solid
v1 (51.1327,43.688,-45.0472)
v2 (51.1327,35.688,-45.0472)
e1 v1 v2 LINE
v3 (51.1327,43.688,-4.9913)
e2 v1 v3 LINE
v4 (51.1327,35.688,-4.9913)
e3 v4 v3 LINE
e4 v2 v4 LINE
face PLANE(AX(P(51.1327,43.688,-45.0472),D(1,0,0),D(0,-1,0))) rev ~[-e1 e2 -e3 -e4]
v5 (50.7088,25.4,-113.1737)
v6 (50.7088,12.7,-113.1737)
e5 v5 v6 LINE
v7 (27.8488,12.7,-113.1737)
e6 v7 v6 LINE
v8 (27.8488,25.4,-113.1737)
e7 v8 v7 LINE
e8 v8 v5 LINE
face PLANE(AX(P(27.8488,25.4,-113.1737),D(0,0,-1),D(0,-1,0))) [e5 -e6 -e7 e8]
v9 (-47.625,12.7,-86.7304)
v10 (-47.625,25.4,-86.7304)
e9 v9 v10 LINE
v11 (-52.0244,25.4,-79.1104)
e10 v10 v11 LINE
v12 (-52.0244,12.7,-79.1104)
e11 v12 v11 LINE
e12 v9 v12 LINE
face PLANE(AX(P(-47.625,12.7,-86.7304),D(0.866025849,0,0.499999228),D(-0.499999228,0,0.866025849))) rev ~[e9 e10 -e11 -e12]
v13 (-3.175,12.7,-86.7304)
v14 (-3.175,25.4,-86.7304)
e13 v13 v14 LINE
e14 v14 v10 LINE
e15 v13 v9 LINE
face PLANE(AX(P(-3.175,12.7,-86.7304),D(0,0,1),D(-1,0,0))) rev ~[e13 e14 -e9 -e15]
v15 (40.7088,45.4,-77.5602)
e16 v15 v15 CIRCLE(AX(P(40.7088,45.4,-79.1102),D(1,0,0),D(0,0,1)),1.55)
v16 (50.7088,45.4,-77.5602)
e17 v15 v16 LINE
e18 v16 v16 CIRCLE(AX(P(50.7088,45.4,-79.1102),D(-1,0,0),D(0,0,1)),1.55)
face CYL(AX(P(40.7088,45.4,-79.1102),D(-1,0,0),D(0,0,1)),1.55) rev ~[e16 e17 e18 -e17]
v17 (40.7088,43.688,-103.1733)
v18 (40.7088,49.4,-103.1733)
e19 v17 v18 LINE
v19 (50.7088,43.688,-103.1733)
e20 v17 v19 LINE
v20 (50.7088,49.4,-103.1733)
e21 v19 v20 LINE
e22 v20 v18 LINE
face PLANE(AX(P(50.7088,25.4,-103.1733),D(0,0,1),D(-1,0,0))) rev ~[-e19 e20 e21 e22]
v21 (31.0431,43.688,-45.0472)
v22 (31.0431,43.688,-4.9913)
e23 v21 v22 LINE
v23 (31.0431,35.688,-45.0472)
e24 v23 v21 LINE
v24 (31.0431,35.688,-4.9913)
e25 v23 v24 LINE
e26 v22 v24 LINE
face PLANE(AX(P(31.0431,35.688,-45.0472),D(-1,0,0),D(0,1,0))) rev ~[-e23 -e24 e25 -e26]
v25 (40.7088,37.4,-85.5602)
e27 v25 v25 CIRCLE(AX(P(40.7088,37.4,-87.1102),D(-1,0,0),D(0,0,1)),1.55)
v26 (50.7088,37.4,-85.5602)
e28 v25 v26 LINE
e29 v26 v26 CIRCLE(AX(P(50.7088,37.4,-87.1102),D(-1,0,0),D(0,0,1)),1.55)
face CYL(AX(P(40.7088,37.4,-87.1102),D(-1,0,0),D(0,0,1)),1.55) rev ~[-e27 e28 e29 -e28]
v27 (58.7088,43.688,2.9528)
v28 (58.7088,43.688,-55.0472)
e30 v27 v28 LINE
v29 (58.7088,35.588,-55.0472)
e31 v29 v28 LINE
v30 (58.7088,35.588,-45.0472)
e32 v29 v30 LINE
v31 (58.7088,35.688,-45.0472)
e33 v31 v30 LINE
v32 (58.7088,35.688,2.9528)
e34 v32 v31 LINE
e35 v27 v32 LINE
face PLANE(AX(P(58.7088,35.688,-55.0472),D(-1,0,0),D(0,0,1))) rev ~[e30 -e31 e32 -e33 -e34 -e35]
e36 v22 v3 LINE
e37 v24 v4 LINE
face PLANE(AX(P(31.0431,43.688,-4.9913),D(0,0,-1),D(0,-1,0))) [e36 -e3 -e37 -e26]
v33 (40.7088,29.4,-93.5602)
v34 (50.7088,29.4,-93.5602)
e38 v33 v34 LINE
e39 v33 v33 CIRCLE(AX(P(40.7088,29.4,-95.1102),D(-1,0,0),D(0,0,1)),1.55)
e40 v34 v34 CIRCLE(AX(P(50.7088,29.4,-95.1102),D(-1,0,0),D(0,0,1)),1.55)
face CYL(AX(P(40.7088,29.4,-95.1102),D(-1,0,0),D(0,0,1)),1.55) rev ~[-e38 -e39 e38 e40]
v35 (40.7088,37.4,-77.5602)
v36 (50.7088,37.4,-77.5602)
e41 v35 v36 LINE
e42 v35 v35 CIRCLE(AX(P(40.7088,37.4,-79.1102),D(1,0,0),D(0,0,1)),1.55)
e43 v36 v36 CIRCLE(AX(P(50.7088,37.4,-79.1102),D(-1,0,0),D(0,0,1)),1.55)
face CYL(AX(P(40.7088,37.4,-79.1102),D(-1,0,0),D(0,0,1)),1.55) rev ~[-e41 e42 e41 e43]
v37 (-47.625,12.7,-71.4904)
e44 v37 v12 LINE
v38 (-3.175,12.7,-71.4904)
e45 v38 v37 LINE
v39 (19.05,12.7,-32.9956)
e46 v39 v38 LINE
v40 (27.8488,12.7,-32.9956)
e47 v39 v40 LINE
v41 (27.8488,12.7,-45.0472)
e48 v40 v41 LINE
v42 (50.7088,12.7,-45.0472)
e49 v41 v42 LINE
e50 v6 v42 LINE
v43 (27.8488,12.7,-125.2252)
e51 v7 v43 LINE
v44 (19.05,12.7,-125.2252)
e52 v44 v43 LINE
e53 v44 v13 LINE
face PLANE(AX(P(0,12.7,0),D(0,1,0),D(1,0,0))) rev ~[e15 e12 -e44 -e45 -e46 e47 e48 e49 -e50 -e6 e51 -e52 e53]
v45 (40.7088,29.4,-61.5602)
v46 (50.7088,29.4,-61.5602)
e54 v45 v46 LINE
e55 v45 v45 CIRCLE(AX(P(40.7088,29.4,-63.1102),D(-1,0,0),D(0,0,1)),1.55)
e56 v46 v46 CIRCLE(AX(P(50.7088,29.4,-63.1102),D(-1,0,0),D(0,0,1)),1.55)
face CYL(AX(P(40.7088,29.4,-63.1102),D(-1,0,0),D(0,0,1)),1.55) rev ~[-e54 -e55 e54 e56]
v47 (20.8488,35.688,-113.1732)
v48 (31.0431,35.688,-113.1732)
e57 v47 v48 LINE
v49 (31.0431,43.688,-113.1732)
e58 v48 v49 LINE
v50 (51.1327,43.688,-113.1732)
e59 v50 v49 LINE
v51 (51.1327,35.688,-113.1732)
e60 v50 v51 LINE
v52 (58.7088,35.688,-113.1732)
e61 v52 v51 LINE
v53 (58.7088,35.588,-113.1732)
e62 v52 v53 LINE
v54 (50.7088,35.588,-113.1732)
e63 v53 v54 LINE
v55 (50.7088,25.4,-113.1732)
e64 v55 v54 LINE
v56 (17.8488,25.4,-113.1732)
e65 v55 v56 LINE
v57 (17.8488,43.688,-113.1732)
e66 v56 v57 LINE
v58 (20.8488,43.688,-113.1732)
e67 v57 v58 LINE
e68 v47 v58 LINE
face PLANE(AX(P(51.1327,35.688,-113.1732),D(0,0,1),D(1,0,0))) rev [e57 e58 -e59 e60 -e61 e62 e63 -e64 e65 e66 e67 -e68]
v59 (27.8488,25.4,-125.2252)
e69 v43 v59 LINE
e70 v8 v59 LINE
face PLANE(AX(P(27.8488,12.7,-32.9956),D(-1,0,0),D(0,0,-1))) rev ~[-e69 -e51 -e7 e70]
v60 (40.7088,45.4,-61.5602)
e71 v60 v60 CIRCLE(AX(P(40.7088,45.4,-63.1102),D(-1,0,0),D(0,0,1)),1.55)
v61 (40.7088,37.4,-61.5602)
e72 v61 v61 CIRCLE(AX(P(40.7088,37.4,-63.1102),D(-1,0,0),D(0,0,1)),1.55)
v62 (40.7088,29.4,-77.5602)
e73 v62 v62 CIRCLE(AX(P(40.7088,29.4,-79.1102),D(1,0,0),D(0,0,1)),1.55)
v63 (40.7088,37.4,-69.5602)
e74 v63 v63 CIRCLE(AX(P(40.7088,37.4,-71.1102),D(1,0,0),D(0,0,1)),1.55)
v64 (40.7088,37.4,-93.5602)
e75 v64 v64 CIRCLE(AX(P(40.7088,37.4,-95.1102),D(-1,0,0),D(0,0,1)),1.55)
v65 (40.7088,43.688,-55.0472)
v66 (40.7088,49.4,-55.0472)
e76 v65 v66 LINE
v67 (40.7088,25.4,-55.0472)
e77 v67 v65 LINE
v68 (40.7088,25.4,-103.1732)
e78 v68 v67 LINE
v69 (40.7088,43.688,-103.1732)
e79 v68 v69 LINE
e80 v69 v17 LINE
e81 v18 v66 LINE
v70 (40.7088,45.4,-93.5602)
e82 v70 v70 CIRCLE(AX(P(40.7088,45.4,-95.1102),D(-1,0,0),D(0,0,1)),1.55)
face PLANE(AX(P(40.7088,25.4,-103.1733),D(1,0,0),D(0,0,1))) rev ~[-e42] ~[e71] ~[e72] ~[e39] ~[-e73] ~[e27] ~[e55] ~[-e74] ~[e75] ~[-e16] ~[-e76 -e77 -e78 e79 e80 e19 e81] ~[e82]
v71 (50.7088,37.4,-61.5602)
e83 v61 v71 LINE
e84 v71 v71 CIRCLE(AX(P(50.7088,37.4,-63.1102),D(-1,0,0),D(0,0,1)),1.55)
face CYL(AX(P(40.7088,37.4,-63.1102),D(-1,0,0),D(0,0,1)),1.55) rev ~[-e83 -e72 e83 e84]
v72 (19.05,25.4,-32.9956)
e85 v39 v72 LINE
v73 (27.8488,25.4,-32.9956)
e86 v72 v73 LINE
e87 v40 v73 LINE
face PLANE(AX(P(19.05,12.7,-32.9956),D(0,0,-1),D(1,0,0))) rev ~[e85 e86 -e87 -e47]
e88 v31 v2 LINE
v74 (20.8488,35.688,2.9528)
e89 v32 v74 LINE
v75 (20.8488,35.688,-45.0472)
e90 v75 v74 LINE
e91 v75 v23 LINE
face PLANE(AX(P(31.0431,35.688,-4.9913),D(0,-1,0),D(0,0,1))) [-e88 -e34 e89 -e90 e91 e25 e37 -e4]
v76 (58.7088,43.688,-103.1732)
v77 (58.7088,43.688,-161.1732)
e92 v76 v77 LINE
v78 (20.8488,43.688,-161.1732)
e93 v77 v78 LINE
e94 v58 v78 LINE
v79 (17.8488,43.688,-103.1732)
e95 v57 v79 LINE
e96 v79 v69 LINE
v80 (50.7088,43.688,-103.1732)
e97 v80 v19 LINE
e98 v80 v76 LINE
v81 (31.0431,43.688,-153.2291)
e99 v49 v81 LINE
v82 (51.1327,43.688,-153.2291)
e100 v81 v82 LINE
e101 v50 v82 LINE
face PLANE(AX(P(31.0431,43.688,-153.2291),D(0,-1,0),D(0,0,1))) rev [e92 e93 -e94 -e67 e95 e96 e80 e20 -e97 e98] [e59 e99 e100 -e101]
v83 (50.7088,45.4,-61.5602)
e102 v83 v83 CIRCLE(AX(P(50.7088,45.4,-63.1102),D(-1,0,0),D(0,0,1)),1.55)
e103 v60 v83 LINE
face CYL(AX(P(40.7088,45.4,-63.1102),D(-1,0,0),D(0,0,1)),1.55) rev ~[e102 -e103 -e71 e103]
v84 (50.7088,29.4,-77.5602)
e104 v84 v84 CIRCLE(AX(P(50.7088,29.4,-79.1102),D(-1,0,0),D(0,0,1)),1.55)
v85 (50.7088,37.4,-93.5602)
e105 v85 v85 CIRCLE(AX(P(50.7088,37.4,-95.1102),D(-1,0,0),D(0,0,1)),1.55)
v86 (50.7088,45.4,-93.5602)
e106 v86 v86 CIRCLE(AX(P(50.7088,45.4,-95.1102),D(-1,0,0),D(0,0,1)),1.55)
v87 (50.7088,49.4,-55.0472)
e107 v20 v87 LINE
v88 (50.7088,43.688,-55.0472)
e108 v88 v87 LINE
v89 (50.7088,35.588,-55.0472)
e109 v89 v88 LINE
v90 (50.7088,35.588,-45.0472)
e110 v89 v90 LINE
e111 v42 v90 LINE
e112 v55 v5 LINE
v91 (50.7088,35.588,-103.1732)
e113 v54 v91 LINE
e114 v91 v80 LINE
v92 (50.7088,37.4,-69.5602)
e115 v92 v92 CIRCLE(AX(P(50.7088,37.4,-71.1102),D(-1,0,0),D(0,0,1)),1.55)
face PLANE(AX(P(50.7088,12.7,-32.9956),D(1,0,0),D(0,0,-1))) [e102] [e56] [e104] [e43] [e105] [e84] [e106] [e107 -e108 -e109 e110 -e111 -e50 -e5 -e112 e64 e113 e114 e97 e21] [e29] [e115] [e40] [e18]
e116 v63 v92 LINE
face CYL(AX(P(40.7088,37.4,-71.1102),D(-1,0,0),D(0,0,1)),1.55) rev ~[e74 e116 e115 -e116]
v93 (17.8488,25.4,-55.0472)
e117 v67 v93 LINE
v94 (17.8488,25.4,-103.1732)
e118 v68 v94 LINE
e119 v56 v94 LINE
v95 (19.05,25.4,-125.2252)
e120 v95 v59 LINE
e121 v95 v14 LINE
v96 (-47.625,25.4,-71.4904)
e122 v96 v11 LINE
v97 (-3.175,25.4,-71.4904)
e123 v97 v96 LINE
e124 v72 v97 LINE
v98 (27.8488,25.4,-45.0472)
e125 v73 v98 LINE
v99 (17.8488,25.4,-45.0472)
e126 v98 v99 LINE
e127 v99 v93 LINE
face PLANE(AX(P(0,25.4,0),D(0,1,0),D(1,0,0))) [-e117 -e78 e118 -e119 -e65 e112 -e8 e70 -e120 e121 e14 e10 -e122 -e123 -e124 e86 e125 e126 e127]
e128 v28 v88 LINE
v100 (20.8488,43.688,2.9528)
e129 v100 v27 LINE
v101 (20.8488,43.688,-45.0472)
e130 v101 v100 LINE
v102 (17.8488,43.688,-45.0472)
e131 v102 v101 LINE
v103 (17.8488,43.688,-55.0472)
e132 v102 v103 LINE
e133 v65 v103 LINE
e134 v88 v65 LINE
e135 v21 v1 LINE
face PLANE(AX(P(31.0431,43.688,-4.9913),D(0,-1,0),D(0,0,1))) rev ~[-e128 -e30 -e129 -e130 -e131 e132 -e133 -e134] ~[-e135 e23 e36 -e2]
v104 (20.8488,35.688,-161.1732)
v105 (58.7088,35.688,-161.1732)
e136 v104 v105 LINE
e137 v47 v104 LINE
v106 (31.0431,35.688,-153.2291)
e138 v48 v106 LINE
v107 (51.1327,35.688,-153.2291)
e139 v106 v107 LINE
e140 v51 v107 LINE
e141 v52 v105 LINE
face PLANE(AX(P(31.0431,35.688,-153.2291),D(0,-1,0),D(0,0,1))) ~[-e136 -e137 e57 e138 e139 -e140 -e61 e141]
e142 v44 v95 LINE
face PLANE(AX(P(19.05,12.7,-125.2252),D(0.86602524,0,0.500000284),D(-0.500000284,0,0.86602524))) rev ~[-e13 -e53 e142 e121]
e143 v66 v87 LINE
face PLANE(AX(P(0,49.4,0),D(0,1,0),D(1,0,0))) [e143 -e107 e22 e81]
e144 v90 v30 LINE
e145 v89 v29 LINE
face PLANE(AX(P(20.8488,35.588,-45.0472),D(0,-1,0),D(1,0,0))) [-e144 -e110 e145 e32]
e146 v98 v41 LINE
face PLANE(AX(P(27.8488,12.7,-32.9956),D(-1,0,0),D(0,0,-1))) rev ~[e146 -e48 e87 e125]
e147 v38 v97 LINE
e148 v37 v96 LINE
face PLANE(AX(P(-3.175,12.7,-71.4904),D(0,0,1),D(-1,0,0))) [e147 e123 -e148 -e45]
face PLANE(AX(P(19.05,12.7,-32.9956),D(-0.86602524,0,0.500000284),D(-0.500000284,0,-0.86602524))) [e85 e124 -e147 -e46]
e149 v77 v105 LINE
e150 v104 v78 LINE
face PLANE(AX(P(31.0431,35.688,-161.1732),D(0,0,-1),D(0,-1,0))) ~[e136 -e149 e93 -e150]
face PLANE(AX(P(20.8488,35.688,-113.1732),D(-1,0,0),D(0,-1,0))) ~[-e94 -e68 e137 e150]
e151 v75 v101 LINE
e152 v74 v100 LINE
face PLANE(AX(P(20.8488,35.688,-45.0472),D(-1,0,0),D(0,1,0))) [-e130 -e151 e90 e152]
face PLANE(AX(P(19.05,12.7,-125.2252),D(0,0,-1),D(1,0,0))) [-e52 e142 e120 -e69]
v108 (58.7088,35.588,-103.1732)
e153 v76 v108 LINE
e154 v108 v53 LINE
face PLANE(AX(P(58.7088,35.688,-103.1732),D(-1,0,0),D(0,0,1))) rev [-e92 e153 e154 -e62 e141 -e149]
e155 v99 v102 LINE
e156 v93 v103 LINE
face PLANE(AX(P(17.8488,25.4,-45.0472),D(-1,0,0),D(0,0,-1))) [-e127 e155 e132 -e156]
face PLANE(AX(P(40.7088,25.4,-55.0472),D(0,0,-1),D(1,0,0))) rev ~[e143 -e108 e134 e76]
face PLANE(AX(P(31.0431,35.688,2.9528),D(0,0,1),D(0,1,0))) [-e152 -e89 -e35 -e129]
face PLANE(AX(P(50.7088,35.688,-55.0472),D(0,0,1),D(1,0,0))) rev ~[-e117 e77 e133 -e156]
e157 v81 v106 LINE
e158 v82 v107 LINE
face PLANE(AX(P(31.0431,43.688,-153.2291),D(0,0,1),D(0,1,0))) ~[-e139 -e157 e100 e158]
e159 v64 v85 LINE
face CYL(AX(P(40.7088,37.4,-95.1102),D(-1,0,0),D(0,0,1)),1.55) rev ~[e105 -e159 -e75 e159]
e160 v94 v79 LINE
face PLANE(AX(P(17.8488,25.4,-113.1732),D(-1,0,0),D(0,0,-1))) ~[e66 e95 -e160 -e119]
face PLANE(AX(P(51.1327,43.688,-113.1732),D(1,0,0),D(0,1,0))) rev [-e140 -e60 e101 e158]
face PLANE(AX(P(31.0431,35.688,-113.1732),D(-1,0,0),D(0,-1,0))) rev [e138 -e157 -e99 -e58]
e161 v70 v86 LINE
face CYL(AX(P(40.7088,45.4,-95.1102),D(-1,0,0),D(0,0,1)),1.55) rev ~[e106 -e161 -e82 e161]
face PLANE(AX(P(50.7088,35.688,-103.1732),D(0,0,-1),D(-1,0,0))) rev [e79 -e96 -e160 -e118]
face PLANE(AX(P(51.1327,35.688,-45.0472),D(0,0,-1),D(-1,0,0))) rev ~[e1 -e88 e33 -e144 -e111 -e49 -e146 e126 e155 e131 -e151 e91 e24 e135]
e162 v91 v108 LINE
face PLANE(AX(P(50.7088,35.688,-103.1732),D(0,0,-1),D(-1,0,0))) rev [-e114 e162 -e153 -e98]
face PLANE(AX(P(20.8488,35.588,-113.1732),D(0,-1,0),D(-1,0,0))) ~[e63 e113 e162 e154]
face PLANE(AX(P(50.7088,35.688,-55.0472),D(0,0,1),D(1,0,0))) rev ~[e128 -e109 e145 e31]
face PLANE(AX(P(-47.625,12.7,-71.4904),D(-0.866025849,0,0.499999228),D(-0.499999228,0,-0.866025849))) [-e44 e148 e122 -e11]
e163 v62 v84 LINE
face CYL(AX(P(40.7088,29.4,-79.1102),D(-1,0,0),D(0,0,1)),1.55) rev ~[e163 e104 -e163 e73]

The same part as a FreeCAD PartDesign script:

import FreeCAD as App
import Part
import Sketcher

V = App.Vector
Q = App.Units.Quantity

doc = App.newDocument("Part")
body = doc.addObject("PartDesign::Body", "Body")

# Sketch on XZ plane
sketch1 = body.newObject("Sketcher::SketchObject", "Sketch")
sketch1.AttachmentSupport = (doc.getObject("XZ_Plane"), [""])
sketch1.MapMode = "FlatFace"
sketch1.AttachmentOffset = App.Placement(V(0, 0, -12.7), App.Rotation())
sketch1.addGeometry([
    Part.LineSegment(V(-3, -71, 0), V(19, -33, 0)),  # 0
    Part.LineSegment(V(19, -33, 0), V(28, -33, 0)),  # 1
    Part.LineSegment(V(28, -33, 0), V(1, -79, 0)),  # 2
    Part.LineSegment(V(1, -79, 0), V(-52, -79, 0)),  # 3
    Part.LineSegment(V(-52, -79, 0), V(-48, -71, 0)),  # 4
    Part.LineSegment(V(-48, -71, 0), V(-3, -71, 0)),  # 5
], False)
sketch1.addConstraint([
    Sketcher.Constraint("Coincident", 0, 2, 1, 1),
    Sketcher.Constraint("Coincident", 1, 2, 2, 1),
    Sketcher.Constraint("Coincident", 2, 2, 3, 1),
    Sketcher.Constraint("Coincident", 3, 2, 4, 1),
    Sketcher.Constraint("Coincident", 4, 2, 5, 1),
    Sketcher.Constraint("Coincident", 5, 2, 0, 1),
    Sketcher.Constraint("Horizontal", 1),
    Sketcher.Constraint("Horizontal", 3),
    Sketcher.Constraint("Horizontal", 5),
    Sketcher.Constraint("Parallel", 0, 2),
    Sketcher.Constraint("Parallel", 2, 4),
    Sketcher.Constraint("Angle", 0, Q("60 deg")),
    Sketcher.Constraint("DistanceX", 5, 1, 5, 2, 44.45),
    Sketcher.Constraint("Distance", 0, 44.45),
    Sketcher.Constraint("DistanceX", 1, 1, 1, 2, 8.7988),
    Sketcher.Constraint("Distance", 4, 8.7988),
    Sketcher.Constraint("DistanceX", -1, 1, 0, 2, 19.05),
    Sketcher.Constraint("DistanceY", 0, 2, -1, 1, 32.9956),
])
pad1 = body.newObject("PartDesign::Pad", "Pad")
pad1.Profile = sketch1
pad1.Length = 12.7
pad1.Reversed = True

# Sketch on XZ plane
sketch2 = body.newObject("Sketcher::SketchObject", "Sketch001")
sketch2.AttachmentSupport = (doc.getObject("XZ_Plane"), [""])
sketch2.MapMode = "FlatFace"
sketch2.AttachmentOffset = App.Placement(V(0, 0, -12.7), App.Rotation())
sketch2.addGeometry([
    Part.LineSegment(V(-52, -79, 0), V(1, -79, 0)),  # 0
    Part.LineSegment(V(1, -79, 0), V(28, -125, 0)),  # 1
    Part.LineSegment(V(28, -125, 0), V(19, -125, 0)),  # 2
    Part.LineSegment(V(19, -125, 0), V(-3, -87, 0)),  # 3
    Part.LineSegment(V(-3, -87, 0), V(-48, -87, 0)),  # 4
    Part.LineSegment(V(-48, -87, 0), V(-52, -79, 0)),  # 5
], False)
sketch2.addConstraint([
    Sketcher.Constraint("Coincident", 0, 2, 1, 1),
    Sketcher.Constraint("Coincident", 1, 2, 2, 1),
    Sketcher.Constraint("Coincident", 2, 2, 3, 1),
    Sketcher.Constraint("Coincident", 3, 2, 4, 1),
    Sketcher.Constraint("Coincident", 4, 2, 5, 1),
    Sketcher.Constraint("Coincident", 5, 2, 0, 1),
    Sketcher.Constraint("Horizontal", 0),
    Sketcher.Constraint("Horizontal", 2),
    Sketcher.Constraint("Horizontal", 4),
    Sketcher.Constraint("Parallel", 1, 3),
    Sketcher.Constraint("Parallel", 3, 5),
    Sketcher.Constraint("Angle", 1, Q("-60 deg")),
    Sketcher.Constraint("DistanceX", 4, 2, 4, 1, 44.45),
    Sketcher.Constraint("Distance", 3, 44.45),
    Sketcher.Constraint("DistanceX", 2, 2, 2, 1, 8.7988),
    Sketcher.Constraint("Distance", 5, 8.7988),
    Sketcher.Constraint("DistanceX", -1, 1, 2, 2, 19.05),
    Sketcher.Constraint("DistanceY", 0, 2, -1, 1, 79.1104),
])
pad2 = body.newObject("PartDesign::Pad", "Pad001")
pad2.Profile = sketch2
pad2.Length = 12.7
pad2.Reversed = True

# Sketch on XZ plane
sketch3 = body.newObject("Sketcher::SketchObject", "Sketch002")
sketch3.AttachmentSupport = (doc.getObject("XZ_Plane"), [""])
sketch3.MapMode = "FlatFace"
sketch3.AttachmentOffset = App.Placement(V(0, 0, -12.7), App.Rotation())
sketch3.addGeometry([
    Part.LineSegment(V(1, -79, 0), V(28, -33, 0)),
    Part.LineSegment(V(28, -33, 0), V(28, -125, 0)),
    Part.LineSegment(V(28, -125, 0), V(1, -79, 0)),
], False)
sketch3.addConstraint([
    Sketcher.Constraint("Coincident", 0, 2, 1, 1),
    Sketcher.Constraint("Coincident", 1, 2, 2, 1),
    Sketcher.Constraint("Coincident", 2, 2, 0, 1),
    Sketcher.Constraint("Vertical", 1),
    Sketcher.Constraint("Equal", 0, 2),
    Sketcher.Constraint("Angle", 0, Q("60 deg")),
    Sketcher.Constraint("DistanceY", 1, 2, 1, 1, 92.2296),
    Sketcher.Constraint("DistanceX", -1, 1, 0, 2, 27.8488),
    Sketcher.Constraint("DistanceY", 0, 2, -1, 1, 32.9956),
])
pad3 = body.newObject("PartDesign::Pad", "Pad002")
pad3.Profile = sketch3
pad3.Length = 12.7
pad3.Reversed = True

# Sketch on YZ plane
sketch4 = body.newObject("Sketcher::SketchObject", "Sketch003")
sketch4.AttachmentSupport = (doc.getObject("YZ_Plane"), [""])
sketch4.MapMode = "FlatFace"
sketch4.AttachmentOffset = App.Placement(V(0, 0, 27.8488), App.Rotation())
sketch4.addGeometry([
    Part.LineSegment(V(25, -45, 0), V(13, -45, 0)),
    Part.LineSegment(V(13, -45, 0), V(13, -113, 0)),
    Part.LineSegment(V(13, -113, 0), V(25, -113, 0)),
    Part.LineSegment(V(25, -113, 0), V(25, -45, 0)),
], False)
sketch4.addConstraint([
    Sketcher.Constraint("Coincident", 0, 2, 1, 1),
    Sketcher.Constraint("Coincident", 1, 2, 2, 1),
    Sketcher.Constraint("Coincident", 2, 2, 3, 1),
    Sketcher.Constraint("Coincident", 3, 2, 0, 1),
    Sketcher.Constraint("Horizontal", 0),
    Sketcher.Constraint("Vertical", 1),
    Sketcher.Constraint("Horizontal", 2),
    Sketcher.Constraint("Vertical", 3),
    Sketcher.Constraint("DistanceX", 0, 2, 0, 1, 12.7),
    Sketcher.Constraint("DistanceX", -1, 1, 0, 2, 12.7),
    Sketcher.Constraint("DistanceY", 1, 2, 1, 1, 68.1265),
    Sketcher.Constraint("DistanceY", 0, 2, -1, 1, 45.0472),
])
pad4 = body.newObject("PartDesign::Pad", "Pad003")
pad4.Profile = sketch4
pad4.Length = 22.86

# Sketch on XZ plane
sketch5 = body.newObject("Sketcher::SketchObject", "Sketch004")
sketch5.AttachmentSupport = (doc.getObject("XZ_Plane"), [""])
sketch5.MapMode = "FlatFace"
sketch5.AttachmentOffset = App.Placement(V(0, 0, -25.4), App.Rotation())
sketch5.addGeometry([
    Part.LineSegment(V(51, -55, 0), V(18, -55, 0)),
    Part.LineSegment(V(18, -55, 0), V(18, -45, 0)),
    Part.LineSegment(V(18, -45, 0), V(51, -45, 0)),
    Part.LineSegment(V(51, -45, 0), V(51, -55, 0)),
], False)
sketch5.addConstraint([
    Sketcher.Constraint("Coincident", 0, 2, 1, 1),
    Sketcher.Constraint("Coincident", 1, 2, 2, 1),
    Sketcher.Constraint("Coincident", 2, 2, 3, 1),
    Sketcher.Constraint("Coincident", 3, 2, 0, 1),
    Sketcher.Constraint("Horizontal", 0),
    Sketcher.Constraint("Vertical", 1),
    Sketcher.Constraint("Horizontal", 2),
    Sketcher.Constraint("Vertical", 3),
    Sketcher.Constraint("DistanceY", 1, 1, 1, 2, 10.0),
    Sketcher.Constraint("DistanceX", 0, 2, 0, 1, 32.86),
    Sketcher.Constraint("DistanceX", -1, 1, 0, 2, 17.8488),
    Sketcher.Constraint("DistanceY", 0, 2, -1, 1, 55.0472),
])
pad5 = body.newObject("PartDesign::Pad", "Pad004")
pad5.Profile = sketch5
pad5.Length = 18.288
pad5.Reversed = True

# Sketch on XY plane
sketch6 = body.newObject("Sketcher::SketchObject", "Sketch005")
sketch6.AttachmentSupport = (doc.getObject("XY_Plane"), [""])
sketch6.MapMode = "FlatFace"
sketch6.AttachmentOffset = App.Placement(V(0, 0, -45.0472), App.Rotation())
sketch6.addGeometry([
    Part.LineSegment(V(21, 44, 0), V(21, 36, 0)),
    Part.LineSegment(V(21, 36, 0), V(31, 36, 0)),
    Part.LineSegment(V(31, 36, 0), V(31, 44, 0)),
    Part.LineSegment(V(31, 44, 0), V(21, 44, 0)),
], False)
sketch6.addConstraint([
    Sketcher.Constraint("Coincident", 0, 2, 1, 1),
    Sketcher.Constraint("Coincident", 1, 2, 2, 1),
    Sketcher.Constraint("Coincident", 2, 2, 3, 1),
    Sketcher.Constraint("Coincident", 3, 2, 0, 1),
    Sketcher.Constraint("Vertical", 0),
    Sketcher.Constraint("Horizontal", 1),
    Sketcher.Constraint("Vertical", 2),
    Sketcher.Constraint("Horizontal", 3),
    Sketcher.Constraint("DistanceY", 0, 2, 0, 1, 8.0),
    Sketcher.Constraint("DistanceX", 1, 1, 1, 2, 10.1943),
    Sketcher.Constraint("DistanceY", -1, 1, 0, 2, 35.688),
    Sketcher.Constraint("DistanceX", -1, 1, 1, 2, 31.043),
])
pad6 = body.newObject("PartDesign::Pad", "Pad005")
pad6.Profile = sketch6
pad6.Length = 48

# Sketch on YZ plane
sketch7 = body.newObject("Sketcher::SketchObject", "Sketch006")
sketch7.AttachmentSupport = (doc.getObject("YZ_Plane"), [""])
sketch7.MapMode = "FlatFace"
sketch7.AttachmentOffset = App.Placement(V(0, 0, 50.7088), App.Rotation())
sketch7.addGeometry([
    Part.LineSegment(V(44, -55, 0), V(44, -45, 0)),
    Part.LineSegment(V(44, -45, 0), V(36, -45, 0)),
    Part.LineSegment(V(36, -45, 0), V(36, -55, 0)),
    Part.LineSegment(V(36, -55, 0), V(44, -55, 0)),
], False)
sketch7.addConstraint([
    Sketcher.Constraint("Coincident", 0, 2, 1, 1),
    Sketcher.Constraint("Coincident", 1, 2, 2, 1),
    Sketcher.Constraint("Coincident", 2, 2, 3, 1),
    Sketcher.Constraint("Coincident", 3, 2, 0, 1),
    Sketcher.Constraint("Vertical", 0),
    Sketcher.Constraint("Horizontal", 1),
    Sketcher.Constraint("Vertical", 2),
    Sketcher.Constraint("Horizontal", 3),
    Sketcher.Constraint("DistanceX", 1, 2, 1, 1, 8.0),
    Sketcher.Constraint("DistanceY", 0, 1, 0, 2, 10.0),
    Sketcher.Constraint("DistanceX", -1, 1, 0, 2, 43.688),
    Sketcher.Constraint("DistanceY", 0, 2, -1, 1, 45.0472),
])
pad7 = body.newObject("PartDesign::Pad", "Pad006")
pad7.Profile = sketch7
pad7.Length = 8

# Sketch on XY plane
sketch8 = body.newObject("Sketcher::SketchObject", "Sketch007")
sketch8.AttachmentSupport = (doc.getObject("XY_Plane"), [""])
sketch8.MapMode = "FlatFace"
sketch8.AttachmentOffset = App.Placement(V(0, 0, -45.0472), App.Rotation())
sketch8.addGeometry([
    Part.LineSegment(V(59, 44, 0), V(51, 44, 0)),
    Part.LineSegment(V(51, 44, 0), V(51, 36, 0)),
    Part.LineSegment(V(51, 36, 0), V(59, 36, 0)),
    Part.LineSegment(V(59, 36, 0), V(59, 44, 0)),
], False)
sketch8.addConstraint([
    Sketcher.Constraint("Coincident", 0, 2, 1, 1),
    Sketcher.Constraint("Coincident", 1, 2, 2, 1),
    Sketcher.Constraint("Coincident", 2, 2, 3, 1),
    Sketcher.Constraint("Coincident", 3, 2, 0, 1),
    Sketcher.Constraint("Horizontal", 0),
    Sketcher.Constraint("Vertical", 1),
    Sketcher.Constraint("Horizontal", 2),
    Sketcher.Constraint("Vertical", 3),
    Sketcher.Constraint("DistanceY", 1, 2, 1, 1, 8.0),
    Sketcher.Constraint("DistanceX", 0, 2, 0, 1, 7.576),
    Sketcher.Constraint("DistanceY", -1, 1, 0, 2, 43.688),
    Sketcher.Constraint("DistanceX", -1, 1, 0, 2, 51.1327),
])
pad8 = body.newObject("PartDesign::Pad", "Pad007")
pad8.Profile = sketch8
pad8.Length = 48

# Sketch on YZ plane
sketch9 = body.newObject("Sketcher::SketchObject", "Sketch008")
sketch9.AttachmentSupport = (doc.getObject("YZ_Plane"), [""])
sketch9.MapMode = "FlatFace"
sketch9.AttachmentOffset = App.Placement(V(0, 0, 31.0431), App.Rotation())
sketch9.addGeometry([
    Part.LineSegment(V(36, -5, 0), V(44, -5, 0)),
    Part.LineSegment(V(44, -5, 0), V(44, 3, 0)),
    Part.LineSegment(V(44, 3, 0), V(36, 3, 0)),
    Part.LineSegment(V(36, 3, 0), V(36, -5, 0)),
], False)
sketch9.addConstraint([
    Sketcher.Constraint("Coincident", 0, 2, 1, 1),
    Sketcher.Constraint("Coincident", 1, 2, 2, 1),
    Sketcher.Constraint("Coincident", 2, 2, 3, 1),
    Sketcher.Constraint("Coincident", 3, 2, 0, 1),
    Sketcher.Constraint("Horizontal", 0),
    Sketcher.Constraint("Vertical", 1),
    Sketcher.Constraint("Horizontal", 2),
    Sketcher.Constraint("Vertical", 3),
    Sketcher.Constraint("DistanceX", 0, 1, 0, 2, 8.0),
    Sketcher.Constraint("DistanceY", 1, 1, 1, 2, 7.944),
    Sketcher.Constraint("DistanceX", -1, 1, 0, 2, 43.688),
    Sketcher.Constraint("DistanceY", 0, 2, -1, 1, 4.9913),
])
pad9 = body.newObject("PartDesign::Pad", "Pad008")
pad9.Profile = sketch9
pad9.Length = 24

# Sketch on XZ plane
sketch10 = body.newObject("Sketcher::SketchObject", "Sketch009")
sketch10.AttachmentSupport = (doc.getObject("XZ_Plane"), [""])
sketch10.MapMode = "FlatFace"
sketch10.AttachmentOffset = App.Placement(V(0, 0, -35.688), App.Rotation())
sketch10.addGeometry([
    Part.LineSegment(V(51, -45, 0), V(51, -55, 0)),
    Part.LineSegment(V(51, -55, 0), V(59, -55, 0)),
    Part.LineSegment(V(59, -55, 0), V(59, -45, 0)),
    Part.LineSegment(V(59, -45, 0), V(51, -45, 0)),
], False)
sketch10.addConstraint([
    Sketcher.Constraint("Coincident", 0, 2, 1, 1),
    Sketcher.Constraint("Coincident", 1, 2, 2, 1),
    Sketcher.Constraint("Coincident", 2, 2, 3, 1),
    Sketcher.Constraint("Coincident", 3, 2, 0, 1),
    Sketcher.Constraint("Vertical", 0),
    Sketcher.Constraint("Horizontal", 1),
    Sketcher.Constraint("Vertical", 2),
    Sketcher.Constraint("Horizontal", 3),
    Sketcher.Constraint("DistanceX", 1, 1, 1, 2, 8.0),
    Sketcher.Constraint("DistanceY", 0, 2, 0, 1, 10.0),
    Sketcher.Constraint("DistanceX", -1, 1, 0, 2, 50.7088),
    Sketcher.Constraint("DistanceY", 0, 2, -1, 1, 55.0472),
])
pad10 = body.newObject("PartDesign::Pad", "Pad009")
pad10.Profile = sketch10
pad10.Length = 0.1
doc.recompute()

datumplane = body.newObject("PartDesign::Plane", "DatumPlane")
datumplane.AttachmentSupport = (doc.getObject("XY_Plane"), [""])
datumplane.MapMode = "FlatFace"
datumplane.AttachmentOffset = App.Placement(V(0, 0, -79.1102), App.Rotation())
mirrored = body.newObject("PartDesign::Mirrored", "Mirrored")
mirrored.Originals = [pad5, pad6, pad7, pad8, pad9, pad10]
mirrored.MirrorPlane = (datumplane, [""])
body.Tip = mirrored

# Sketch on XZ plane
sketch11 = body.newObject("Sketcher::SketchObject", "Sketch010")
sketch11.AttachmentSupport = (doc.getObject("XZ_Plane"), [""])
sketch11.MapMode = "FlatFace"
sketch11.AttachmentOffset = App.Placement(V(0, 0, -25.4), App.Rotation())
sketch11.addGeometry([
    Part.LineSegment(V(51, -55, 0), V(51, -103, 0)),
    Part.LineSegment(V(51, -103, 0), V(41, -103, 0)),
    Part.LineSegment(V(41, -103, 0), V(41, -55, 0)),
    Part.LineSegment(V(41, -55, 0), V(51, -55, 0)),
], False)
sketch11.addConstraint([
    Sketcher.Constraint("Coincident", 0, 2, 1, 1),
    Sketcher.Constraint("Coincident", 1, 2, 2, 1),
    Sketcher.Constraint("Coincident", 2, 2, 3, 1),
    Sketcher.Constraint("Coincident", 3, 2, 0, 1),
    Sketcher.Constraint("Vertical", 0),
    Sketcher.Constraint("Horizontal", 1),
    Sketcher.Constraint("Vertical", 2),
    Sketcher.Constraint("Horizontal", 3),
    Sketcher.Constraint("DistanceX", 1, 2, 1, 1, 10.0),
    Sketcher.Constraint("DistanceY", 0, 2, 0, 1, 48.126),
    Sketcher.Constraint("DistanceX", -1, 1, 0, 2, 50.7088),
    Sketcher.Constraint("DistanceY", 0, 2, -1, 1, 103.1733),
])
pad11 = body.newObject("PartDesign::Pad", "Pad010")
pad11.Profile = sketch11
pad11.Length = 24
pad11.Reversed = True

# Sketch on YZ plane
sketch12 = body.newObject("Sketcher::SketchObject", "Sketch011")
sketch12.AttachmentSupport = (doc.getObject("YZ_Plane"), [""])
sketch12.MapMode = "FlatFace"
sketch12.AttachmentOffset = App.Placement(V(0, 0, 40.7088), App.Rotation())
sketch12.addGeometry([
    Part.Circle(V(37.4, -71.1, 0), V(0, 0, 1), 1.6),  # 0
    Part.Circle(V(29.4, -79.1, 0), V(0, 0, 1), 1.6),  # 1
    Part.Circle(V(37.4, -87.1, 0), V(0, 0, 1), 1.6),  # 2
    Part.Circle(V(37.4, -79.1, 0), V(0, 0, 1), 1.6),  # 3
    Part.Circle(V(45.4, -79.1, 0), V(0, 0, 1), 1.6),  # 4
    Part.Circle(V(37.4, -95.1, 0), V(0, 0, 1), 1.6),  # 5
    Part.Circle(V(45.4, -95.1, 0), V(0, 0, 1), 1.6),  # 6
    Part.Circle(V(29.4, -95.1, 0), V(0, 0, 1), 1.6),  # 7
    Part.Circle(V(37.4, -63.1, 0), V(0, 0, 1), 1.6),  # 8
    Part.Circle(V(45.4, -63.1, 0), V(0, 0, 1), 1.6),  # 9
    Part.Circle(V(29.4, -63.1, 0), V(0, 0, 1), 1.6),  # 10
], False)
sketch12.addConstraint([
    Sketcher.Constraint("Equal", 0, 1),
    Sketcher.Constraint("Equal", 1, 2),
    Sketcher.Constraint("Equal", 2, 3),
    Sketcher.Constraint("Equal", 3, 4),
    Sketcher.Constraint("Equal", 4, 5),
    Sketcher.Constraint("Equal", 5, 6),
    Sketcher.Constraint("Equal", 6, 7),
    Sketcher.Constraint("Equal", 7, 8),
    Sketcher.Constraint("Equal", 8, 9),
    Sketcher.Constraint("Equal", 9, 10),
    Sketcher.Constraint("Horizontal", 1, 3, 3, 3),
    Sketcher.Constraint("Horizontal", 3, 3, 4, 3),
    Sketcher.Constraint("Horizontal", 5, 3, 6, 3),
    Sketcher.Constraint("Horizontal", 6, 3, 7, 3),
    Sketcher.Constraint("Horizontal", 8, 3, 9, 3),
    Sketcher.Constraint("Horizontal", 9, 3, 10, 3),
    Sketcher.Constraint("Vertical", 0, 3, 2, 3),
    Sketcher.Constraint("Vertical", 2, 3, 3, 3),
    Sketcher.Constraint("Vertical", 3, 3, 5, 3),
    Sketcher.Constraint("Vertical", 4, 3, 6, 3),
    Sketcher.Constraint("Vertical", 1, 3, 7, 3),
    Sketcher.Constraint("Vertical", 5, 3, 8, 3),
    Sketcher.Constraint("Vertical", 6, 3, 9, 3),
    Sketcher.Constraint("Vertical", 7, 3, 10, 3),
    Sketcher.Constraint("Diameter", 0, 3.1),
    Sketcher.Constraint("DistanceX", 1, 3, 0, 3, 8.0),
    Sketcher.Constraint("DistanceY", 1, 3, 0, 3, 8.0),
    Sketcher.Constraint("DistanceY", 2, 3, 1, 3, 8.0),
    Sketcher.Constraint("DistanceX", 3, 3, 4, 3, 8.0),
    Sketcher.Constraint("DistanceY", 5, 3, 2, 3, 8.0),
    Sketcher.Constraint("DistanceY", 0, 3, 8, 3, 8.0),
    Sketcher.Constraint("DistanceX", -1, 1, 0, 3, 37.4),
    Sketcher.Constraint("DistanceY", 0, 3, -1, 1, 71.1102),
])
pocket1 = body.newObject("PartDesign::Pocket", "Pocket")
pocket1.Profile = sketch12
pocket1.Length = 14.75
pocket1.Reversed = True

doc.recompute()
